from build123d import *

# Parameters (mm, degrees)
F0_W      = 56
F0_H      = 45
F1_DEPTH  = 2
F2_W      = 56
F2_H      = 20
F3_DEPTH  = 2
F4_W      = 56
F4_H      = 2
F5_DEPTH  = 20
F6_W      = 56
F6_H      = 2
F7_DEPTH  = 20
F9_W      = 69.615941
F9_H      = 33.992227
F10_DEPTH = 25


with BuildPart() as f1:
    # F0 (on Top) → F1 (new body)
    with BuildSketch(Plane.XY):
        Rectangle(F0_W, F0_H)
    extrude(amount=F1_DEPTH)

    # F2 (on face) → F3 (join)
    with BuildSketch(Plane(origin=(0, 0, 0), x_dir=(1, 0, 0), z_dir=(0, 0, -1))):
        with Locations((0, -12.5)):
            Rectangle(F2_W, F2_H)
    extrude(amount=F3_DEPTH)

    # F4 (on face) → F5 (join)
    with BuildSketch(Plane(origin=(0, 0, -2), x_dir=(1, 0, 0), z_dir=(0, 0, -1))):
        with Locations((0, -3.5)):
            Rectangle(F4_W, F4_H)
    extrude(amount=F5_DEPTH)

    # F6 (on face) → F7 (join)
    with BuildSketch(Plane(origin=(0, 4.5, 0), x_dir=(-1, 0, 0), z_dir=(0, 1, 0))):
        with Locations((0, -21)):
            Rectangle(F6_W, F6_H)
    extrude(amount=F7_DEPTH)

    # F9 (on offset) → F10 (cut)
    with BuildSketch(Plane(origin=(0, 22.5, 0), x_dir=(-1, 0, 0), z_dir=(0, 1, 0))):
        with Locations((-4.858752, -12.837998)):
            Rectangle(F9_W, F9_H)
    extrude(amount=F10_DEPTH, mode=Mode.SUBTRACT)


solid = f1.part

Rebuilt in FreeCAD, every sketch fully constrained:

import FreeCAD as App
import Part
import Sketcher

V = App.Vector


def add_polygon(sketch, points):
    """Adds a closed chain of lines whose ends are joined by coincident constraints."""
    first, n = sketch.GeometryCount, len(points)
    for a, b in zip(points, points[1:] + points[:1]):
        sketch.addGeometry(Part.LineSegment(App.Vector(*a, 0), App.Vector(*b, 0)), False)
    for i in range(n):
        sketch.addConstraint(Sketcher.Constraint("Coincident", first + i, 2, first + (i + 1) % n, 1))

doc = App.newDocument("Part")
body = doc.addObject("PartDesign::Body", "Body")

sketch1 = body.newObject("Sketcher::SketchObject", "Sketch")
sketch1.AttachmentSupport = (doc.getObject("XY_Plane"), [""])
sketch1.MapMode = "FlatFace"
add_polygon(sketch1, [(-28, 22), (-28, -22), (28, -22), (28, 22)])
sketch1.addConstraint([
    Sketcher.Constraint("Vertical", 0),
    Sketcher.Constraint("Horizontal", 1),
    Sketcher.Constraint("Vertical", 2),
    Sketcher.Constraint("Horizontal", 3),
    Sketcher.Constraint("Symmetric", 0, 2, 2, 2, -1, 1),
    Sketcher.Constraint("DistanceX", 1, 1, 1, 2, 56.0),
    Sketcher.Constraint("DistanceY", 0, 2, 0, 1, 45.0),
])
pad1 = body.newObject("PartDesign::Pad", "Pad")
pad1.Profile = sketch1
pad1.Length = 2

sketch2 = body.newObject("Sketcher::SketchObject", "Sketch001")
sketch2.AttachmentSupport = (doc.getObject("XY_Plane"), [""])
sketch2.MapMode = "FlatFace"
add_polygon(sketch2, [(-28, 2), (-28, 22), (28, 22), (28, 2)])
sketch2.addConstraint([
    Sketcher.Constraint("Vertical", 0),
    Sketcher.Constraint("Horizontal", 1),
    Sketcher.Constraint("Vertical", 2),
    Sketcher.Constraint("Horizontal", 3),
    Sketcher.Constraint("DistanceX", 1, 1, 1, 2, 56.0),
    Sketcher.Constraint("DistanceY", 0, 1, 0, 2, 20.0),
    Sketcher.Constraint("DistanceX", 0, 2, -1, 1, 28.0),
    Sketcher.Constraint("DistanceY", -1, 1, 0, 2, 22.5),
])
pad2 = body.newObject("PartDesign::Pad", "Pad001")
pad2.Profile = sketch2
pad2.Length = 2
pad2.Reversed = True

sketch3 = body.newObject("Sketcher::SketchObject", "Sketch002")
sketch3.AttachmentSupport = (doc.getObject("XY_Plane"), [""])
sketch3.MapMode = "FlatFace"
sketch3.AttachmentOffset = App.Placement(V(0, 0, -2), App.Rotation())
add_polygon(sketch3, [(-28, 2.5), (-28, 4.5), (28, 4.5), (28, 2.5)])
sketch3.addConstraint([
    Sketcher.Constraint("Vertical", 0),
    Sketcher.Constraint("Horizontal", 1),
    Sketcher.Constraint("Vertical", 2),
    Sketcher.Constraint("Horizontal", 3),
    Sketcher.Constraint("DistanceX", 1, 1, 1, 2, 56.0),
    Sketcher.Constraint("DistanceY", 0, 1, 0, 2, 2.0),
    Sketcher.Constraint("DistanceX", 0, 2, -1, 1, 28.0),
    Sketcher.Constraint("DistanceY", -1, 1, 0, 2, 4.5),
])
pad3 = body.newObject("PartDesign::Pad", "Pad002")
pad3.Profile = sketch3
pad3.Length = 20
pad3.Reversed = True

sketch4 = body.newObject("Sketcher::SketchObject", "Sketch003")
sketch4.AttachmentSupport = (doc.getObject("XZ_Plane"), [""])
sketch4.MapMode = "FlatFace"
sketch4.AttachmentOffset = App.Placement(V(0, 0, -4.5), App.Rotation())
add_polygon(sketch4, [(28, -20), (28, -22), (-28, -22), (-28, -20)])
sketch4.addConstraint([
    Sketcher.Constraint("Vertical", 0),
    Sketcher.Constraint("Horizontal", 1),
    Sketcher.Constraint("Vertical", 2),
    Sketcher.Constraint("Horizontal", 3),
    Sketcher.Constraint("DistanceX", 1, 2, 1, 1, 56.0),
    Sketcher.Constraint("DistanceY", 0, 2, 0, 1, 2.0),
    Sketcher.Constraint("DistanceX", -1, 1, 0, 2, 28.0),
    Sketcher.Constraint("DistanceY", 0, 2, -1, 1, 22.0),
])
pad4 = body.newObject("PartDesign::Pad", "Pad003")
pad4.Profile = sketch4
pad4.Length = 20
pad4.Reversed = True

sketch5 = body.newObject("Sketcher::SketchObject", "Sketch004")
sketch5.AttachmentSupport = (doc.getObject("XZ_Plane"), [""])
sketch5.MapMode = "FlatFace"
sketch5.AttachmentOffset = App.Placement(V(0, 0, -22.5), App.Rotation())
add_polygon(sketch5, [(40, 4), (40, -30), (-30, -30), (-30, 4)])
sketch5.addConstraint([
    Sketcher.Constraint("Vertical", 0),
    Sketcher.Constraint("Horizontal", 1),
    Sketcher.Constraint("Vertical", 2),
    Sketcher.Constraint("Horizontal", 3),
    Sketcher.Constraint("DistanceX", 1, 2, 1, 1, 69.615941),
    Sketcher.Constraint("DistanceY", 0, 2, 0, 1, 33.992227),
    Sketcher.Constraint("DistanceY", 0, 2, -1, 1, 29.834111),
    Sketcher.Constraint("DistanceX", 1, 2, -1, 1, 29.949219),
])
pocket1 = body.newObject("PartDesign::Pocket", "Pocket")
pocket1.Profile = sketch5
pocket1.Length = 25

doc.recompute()
